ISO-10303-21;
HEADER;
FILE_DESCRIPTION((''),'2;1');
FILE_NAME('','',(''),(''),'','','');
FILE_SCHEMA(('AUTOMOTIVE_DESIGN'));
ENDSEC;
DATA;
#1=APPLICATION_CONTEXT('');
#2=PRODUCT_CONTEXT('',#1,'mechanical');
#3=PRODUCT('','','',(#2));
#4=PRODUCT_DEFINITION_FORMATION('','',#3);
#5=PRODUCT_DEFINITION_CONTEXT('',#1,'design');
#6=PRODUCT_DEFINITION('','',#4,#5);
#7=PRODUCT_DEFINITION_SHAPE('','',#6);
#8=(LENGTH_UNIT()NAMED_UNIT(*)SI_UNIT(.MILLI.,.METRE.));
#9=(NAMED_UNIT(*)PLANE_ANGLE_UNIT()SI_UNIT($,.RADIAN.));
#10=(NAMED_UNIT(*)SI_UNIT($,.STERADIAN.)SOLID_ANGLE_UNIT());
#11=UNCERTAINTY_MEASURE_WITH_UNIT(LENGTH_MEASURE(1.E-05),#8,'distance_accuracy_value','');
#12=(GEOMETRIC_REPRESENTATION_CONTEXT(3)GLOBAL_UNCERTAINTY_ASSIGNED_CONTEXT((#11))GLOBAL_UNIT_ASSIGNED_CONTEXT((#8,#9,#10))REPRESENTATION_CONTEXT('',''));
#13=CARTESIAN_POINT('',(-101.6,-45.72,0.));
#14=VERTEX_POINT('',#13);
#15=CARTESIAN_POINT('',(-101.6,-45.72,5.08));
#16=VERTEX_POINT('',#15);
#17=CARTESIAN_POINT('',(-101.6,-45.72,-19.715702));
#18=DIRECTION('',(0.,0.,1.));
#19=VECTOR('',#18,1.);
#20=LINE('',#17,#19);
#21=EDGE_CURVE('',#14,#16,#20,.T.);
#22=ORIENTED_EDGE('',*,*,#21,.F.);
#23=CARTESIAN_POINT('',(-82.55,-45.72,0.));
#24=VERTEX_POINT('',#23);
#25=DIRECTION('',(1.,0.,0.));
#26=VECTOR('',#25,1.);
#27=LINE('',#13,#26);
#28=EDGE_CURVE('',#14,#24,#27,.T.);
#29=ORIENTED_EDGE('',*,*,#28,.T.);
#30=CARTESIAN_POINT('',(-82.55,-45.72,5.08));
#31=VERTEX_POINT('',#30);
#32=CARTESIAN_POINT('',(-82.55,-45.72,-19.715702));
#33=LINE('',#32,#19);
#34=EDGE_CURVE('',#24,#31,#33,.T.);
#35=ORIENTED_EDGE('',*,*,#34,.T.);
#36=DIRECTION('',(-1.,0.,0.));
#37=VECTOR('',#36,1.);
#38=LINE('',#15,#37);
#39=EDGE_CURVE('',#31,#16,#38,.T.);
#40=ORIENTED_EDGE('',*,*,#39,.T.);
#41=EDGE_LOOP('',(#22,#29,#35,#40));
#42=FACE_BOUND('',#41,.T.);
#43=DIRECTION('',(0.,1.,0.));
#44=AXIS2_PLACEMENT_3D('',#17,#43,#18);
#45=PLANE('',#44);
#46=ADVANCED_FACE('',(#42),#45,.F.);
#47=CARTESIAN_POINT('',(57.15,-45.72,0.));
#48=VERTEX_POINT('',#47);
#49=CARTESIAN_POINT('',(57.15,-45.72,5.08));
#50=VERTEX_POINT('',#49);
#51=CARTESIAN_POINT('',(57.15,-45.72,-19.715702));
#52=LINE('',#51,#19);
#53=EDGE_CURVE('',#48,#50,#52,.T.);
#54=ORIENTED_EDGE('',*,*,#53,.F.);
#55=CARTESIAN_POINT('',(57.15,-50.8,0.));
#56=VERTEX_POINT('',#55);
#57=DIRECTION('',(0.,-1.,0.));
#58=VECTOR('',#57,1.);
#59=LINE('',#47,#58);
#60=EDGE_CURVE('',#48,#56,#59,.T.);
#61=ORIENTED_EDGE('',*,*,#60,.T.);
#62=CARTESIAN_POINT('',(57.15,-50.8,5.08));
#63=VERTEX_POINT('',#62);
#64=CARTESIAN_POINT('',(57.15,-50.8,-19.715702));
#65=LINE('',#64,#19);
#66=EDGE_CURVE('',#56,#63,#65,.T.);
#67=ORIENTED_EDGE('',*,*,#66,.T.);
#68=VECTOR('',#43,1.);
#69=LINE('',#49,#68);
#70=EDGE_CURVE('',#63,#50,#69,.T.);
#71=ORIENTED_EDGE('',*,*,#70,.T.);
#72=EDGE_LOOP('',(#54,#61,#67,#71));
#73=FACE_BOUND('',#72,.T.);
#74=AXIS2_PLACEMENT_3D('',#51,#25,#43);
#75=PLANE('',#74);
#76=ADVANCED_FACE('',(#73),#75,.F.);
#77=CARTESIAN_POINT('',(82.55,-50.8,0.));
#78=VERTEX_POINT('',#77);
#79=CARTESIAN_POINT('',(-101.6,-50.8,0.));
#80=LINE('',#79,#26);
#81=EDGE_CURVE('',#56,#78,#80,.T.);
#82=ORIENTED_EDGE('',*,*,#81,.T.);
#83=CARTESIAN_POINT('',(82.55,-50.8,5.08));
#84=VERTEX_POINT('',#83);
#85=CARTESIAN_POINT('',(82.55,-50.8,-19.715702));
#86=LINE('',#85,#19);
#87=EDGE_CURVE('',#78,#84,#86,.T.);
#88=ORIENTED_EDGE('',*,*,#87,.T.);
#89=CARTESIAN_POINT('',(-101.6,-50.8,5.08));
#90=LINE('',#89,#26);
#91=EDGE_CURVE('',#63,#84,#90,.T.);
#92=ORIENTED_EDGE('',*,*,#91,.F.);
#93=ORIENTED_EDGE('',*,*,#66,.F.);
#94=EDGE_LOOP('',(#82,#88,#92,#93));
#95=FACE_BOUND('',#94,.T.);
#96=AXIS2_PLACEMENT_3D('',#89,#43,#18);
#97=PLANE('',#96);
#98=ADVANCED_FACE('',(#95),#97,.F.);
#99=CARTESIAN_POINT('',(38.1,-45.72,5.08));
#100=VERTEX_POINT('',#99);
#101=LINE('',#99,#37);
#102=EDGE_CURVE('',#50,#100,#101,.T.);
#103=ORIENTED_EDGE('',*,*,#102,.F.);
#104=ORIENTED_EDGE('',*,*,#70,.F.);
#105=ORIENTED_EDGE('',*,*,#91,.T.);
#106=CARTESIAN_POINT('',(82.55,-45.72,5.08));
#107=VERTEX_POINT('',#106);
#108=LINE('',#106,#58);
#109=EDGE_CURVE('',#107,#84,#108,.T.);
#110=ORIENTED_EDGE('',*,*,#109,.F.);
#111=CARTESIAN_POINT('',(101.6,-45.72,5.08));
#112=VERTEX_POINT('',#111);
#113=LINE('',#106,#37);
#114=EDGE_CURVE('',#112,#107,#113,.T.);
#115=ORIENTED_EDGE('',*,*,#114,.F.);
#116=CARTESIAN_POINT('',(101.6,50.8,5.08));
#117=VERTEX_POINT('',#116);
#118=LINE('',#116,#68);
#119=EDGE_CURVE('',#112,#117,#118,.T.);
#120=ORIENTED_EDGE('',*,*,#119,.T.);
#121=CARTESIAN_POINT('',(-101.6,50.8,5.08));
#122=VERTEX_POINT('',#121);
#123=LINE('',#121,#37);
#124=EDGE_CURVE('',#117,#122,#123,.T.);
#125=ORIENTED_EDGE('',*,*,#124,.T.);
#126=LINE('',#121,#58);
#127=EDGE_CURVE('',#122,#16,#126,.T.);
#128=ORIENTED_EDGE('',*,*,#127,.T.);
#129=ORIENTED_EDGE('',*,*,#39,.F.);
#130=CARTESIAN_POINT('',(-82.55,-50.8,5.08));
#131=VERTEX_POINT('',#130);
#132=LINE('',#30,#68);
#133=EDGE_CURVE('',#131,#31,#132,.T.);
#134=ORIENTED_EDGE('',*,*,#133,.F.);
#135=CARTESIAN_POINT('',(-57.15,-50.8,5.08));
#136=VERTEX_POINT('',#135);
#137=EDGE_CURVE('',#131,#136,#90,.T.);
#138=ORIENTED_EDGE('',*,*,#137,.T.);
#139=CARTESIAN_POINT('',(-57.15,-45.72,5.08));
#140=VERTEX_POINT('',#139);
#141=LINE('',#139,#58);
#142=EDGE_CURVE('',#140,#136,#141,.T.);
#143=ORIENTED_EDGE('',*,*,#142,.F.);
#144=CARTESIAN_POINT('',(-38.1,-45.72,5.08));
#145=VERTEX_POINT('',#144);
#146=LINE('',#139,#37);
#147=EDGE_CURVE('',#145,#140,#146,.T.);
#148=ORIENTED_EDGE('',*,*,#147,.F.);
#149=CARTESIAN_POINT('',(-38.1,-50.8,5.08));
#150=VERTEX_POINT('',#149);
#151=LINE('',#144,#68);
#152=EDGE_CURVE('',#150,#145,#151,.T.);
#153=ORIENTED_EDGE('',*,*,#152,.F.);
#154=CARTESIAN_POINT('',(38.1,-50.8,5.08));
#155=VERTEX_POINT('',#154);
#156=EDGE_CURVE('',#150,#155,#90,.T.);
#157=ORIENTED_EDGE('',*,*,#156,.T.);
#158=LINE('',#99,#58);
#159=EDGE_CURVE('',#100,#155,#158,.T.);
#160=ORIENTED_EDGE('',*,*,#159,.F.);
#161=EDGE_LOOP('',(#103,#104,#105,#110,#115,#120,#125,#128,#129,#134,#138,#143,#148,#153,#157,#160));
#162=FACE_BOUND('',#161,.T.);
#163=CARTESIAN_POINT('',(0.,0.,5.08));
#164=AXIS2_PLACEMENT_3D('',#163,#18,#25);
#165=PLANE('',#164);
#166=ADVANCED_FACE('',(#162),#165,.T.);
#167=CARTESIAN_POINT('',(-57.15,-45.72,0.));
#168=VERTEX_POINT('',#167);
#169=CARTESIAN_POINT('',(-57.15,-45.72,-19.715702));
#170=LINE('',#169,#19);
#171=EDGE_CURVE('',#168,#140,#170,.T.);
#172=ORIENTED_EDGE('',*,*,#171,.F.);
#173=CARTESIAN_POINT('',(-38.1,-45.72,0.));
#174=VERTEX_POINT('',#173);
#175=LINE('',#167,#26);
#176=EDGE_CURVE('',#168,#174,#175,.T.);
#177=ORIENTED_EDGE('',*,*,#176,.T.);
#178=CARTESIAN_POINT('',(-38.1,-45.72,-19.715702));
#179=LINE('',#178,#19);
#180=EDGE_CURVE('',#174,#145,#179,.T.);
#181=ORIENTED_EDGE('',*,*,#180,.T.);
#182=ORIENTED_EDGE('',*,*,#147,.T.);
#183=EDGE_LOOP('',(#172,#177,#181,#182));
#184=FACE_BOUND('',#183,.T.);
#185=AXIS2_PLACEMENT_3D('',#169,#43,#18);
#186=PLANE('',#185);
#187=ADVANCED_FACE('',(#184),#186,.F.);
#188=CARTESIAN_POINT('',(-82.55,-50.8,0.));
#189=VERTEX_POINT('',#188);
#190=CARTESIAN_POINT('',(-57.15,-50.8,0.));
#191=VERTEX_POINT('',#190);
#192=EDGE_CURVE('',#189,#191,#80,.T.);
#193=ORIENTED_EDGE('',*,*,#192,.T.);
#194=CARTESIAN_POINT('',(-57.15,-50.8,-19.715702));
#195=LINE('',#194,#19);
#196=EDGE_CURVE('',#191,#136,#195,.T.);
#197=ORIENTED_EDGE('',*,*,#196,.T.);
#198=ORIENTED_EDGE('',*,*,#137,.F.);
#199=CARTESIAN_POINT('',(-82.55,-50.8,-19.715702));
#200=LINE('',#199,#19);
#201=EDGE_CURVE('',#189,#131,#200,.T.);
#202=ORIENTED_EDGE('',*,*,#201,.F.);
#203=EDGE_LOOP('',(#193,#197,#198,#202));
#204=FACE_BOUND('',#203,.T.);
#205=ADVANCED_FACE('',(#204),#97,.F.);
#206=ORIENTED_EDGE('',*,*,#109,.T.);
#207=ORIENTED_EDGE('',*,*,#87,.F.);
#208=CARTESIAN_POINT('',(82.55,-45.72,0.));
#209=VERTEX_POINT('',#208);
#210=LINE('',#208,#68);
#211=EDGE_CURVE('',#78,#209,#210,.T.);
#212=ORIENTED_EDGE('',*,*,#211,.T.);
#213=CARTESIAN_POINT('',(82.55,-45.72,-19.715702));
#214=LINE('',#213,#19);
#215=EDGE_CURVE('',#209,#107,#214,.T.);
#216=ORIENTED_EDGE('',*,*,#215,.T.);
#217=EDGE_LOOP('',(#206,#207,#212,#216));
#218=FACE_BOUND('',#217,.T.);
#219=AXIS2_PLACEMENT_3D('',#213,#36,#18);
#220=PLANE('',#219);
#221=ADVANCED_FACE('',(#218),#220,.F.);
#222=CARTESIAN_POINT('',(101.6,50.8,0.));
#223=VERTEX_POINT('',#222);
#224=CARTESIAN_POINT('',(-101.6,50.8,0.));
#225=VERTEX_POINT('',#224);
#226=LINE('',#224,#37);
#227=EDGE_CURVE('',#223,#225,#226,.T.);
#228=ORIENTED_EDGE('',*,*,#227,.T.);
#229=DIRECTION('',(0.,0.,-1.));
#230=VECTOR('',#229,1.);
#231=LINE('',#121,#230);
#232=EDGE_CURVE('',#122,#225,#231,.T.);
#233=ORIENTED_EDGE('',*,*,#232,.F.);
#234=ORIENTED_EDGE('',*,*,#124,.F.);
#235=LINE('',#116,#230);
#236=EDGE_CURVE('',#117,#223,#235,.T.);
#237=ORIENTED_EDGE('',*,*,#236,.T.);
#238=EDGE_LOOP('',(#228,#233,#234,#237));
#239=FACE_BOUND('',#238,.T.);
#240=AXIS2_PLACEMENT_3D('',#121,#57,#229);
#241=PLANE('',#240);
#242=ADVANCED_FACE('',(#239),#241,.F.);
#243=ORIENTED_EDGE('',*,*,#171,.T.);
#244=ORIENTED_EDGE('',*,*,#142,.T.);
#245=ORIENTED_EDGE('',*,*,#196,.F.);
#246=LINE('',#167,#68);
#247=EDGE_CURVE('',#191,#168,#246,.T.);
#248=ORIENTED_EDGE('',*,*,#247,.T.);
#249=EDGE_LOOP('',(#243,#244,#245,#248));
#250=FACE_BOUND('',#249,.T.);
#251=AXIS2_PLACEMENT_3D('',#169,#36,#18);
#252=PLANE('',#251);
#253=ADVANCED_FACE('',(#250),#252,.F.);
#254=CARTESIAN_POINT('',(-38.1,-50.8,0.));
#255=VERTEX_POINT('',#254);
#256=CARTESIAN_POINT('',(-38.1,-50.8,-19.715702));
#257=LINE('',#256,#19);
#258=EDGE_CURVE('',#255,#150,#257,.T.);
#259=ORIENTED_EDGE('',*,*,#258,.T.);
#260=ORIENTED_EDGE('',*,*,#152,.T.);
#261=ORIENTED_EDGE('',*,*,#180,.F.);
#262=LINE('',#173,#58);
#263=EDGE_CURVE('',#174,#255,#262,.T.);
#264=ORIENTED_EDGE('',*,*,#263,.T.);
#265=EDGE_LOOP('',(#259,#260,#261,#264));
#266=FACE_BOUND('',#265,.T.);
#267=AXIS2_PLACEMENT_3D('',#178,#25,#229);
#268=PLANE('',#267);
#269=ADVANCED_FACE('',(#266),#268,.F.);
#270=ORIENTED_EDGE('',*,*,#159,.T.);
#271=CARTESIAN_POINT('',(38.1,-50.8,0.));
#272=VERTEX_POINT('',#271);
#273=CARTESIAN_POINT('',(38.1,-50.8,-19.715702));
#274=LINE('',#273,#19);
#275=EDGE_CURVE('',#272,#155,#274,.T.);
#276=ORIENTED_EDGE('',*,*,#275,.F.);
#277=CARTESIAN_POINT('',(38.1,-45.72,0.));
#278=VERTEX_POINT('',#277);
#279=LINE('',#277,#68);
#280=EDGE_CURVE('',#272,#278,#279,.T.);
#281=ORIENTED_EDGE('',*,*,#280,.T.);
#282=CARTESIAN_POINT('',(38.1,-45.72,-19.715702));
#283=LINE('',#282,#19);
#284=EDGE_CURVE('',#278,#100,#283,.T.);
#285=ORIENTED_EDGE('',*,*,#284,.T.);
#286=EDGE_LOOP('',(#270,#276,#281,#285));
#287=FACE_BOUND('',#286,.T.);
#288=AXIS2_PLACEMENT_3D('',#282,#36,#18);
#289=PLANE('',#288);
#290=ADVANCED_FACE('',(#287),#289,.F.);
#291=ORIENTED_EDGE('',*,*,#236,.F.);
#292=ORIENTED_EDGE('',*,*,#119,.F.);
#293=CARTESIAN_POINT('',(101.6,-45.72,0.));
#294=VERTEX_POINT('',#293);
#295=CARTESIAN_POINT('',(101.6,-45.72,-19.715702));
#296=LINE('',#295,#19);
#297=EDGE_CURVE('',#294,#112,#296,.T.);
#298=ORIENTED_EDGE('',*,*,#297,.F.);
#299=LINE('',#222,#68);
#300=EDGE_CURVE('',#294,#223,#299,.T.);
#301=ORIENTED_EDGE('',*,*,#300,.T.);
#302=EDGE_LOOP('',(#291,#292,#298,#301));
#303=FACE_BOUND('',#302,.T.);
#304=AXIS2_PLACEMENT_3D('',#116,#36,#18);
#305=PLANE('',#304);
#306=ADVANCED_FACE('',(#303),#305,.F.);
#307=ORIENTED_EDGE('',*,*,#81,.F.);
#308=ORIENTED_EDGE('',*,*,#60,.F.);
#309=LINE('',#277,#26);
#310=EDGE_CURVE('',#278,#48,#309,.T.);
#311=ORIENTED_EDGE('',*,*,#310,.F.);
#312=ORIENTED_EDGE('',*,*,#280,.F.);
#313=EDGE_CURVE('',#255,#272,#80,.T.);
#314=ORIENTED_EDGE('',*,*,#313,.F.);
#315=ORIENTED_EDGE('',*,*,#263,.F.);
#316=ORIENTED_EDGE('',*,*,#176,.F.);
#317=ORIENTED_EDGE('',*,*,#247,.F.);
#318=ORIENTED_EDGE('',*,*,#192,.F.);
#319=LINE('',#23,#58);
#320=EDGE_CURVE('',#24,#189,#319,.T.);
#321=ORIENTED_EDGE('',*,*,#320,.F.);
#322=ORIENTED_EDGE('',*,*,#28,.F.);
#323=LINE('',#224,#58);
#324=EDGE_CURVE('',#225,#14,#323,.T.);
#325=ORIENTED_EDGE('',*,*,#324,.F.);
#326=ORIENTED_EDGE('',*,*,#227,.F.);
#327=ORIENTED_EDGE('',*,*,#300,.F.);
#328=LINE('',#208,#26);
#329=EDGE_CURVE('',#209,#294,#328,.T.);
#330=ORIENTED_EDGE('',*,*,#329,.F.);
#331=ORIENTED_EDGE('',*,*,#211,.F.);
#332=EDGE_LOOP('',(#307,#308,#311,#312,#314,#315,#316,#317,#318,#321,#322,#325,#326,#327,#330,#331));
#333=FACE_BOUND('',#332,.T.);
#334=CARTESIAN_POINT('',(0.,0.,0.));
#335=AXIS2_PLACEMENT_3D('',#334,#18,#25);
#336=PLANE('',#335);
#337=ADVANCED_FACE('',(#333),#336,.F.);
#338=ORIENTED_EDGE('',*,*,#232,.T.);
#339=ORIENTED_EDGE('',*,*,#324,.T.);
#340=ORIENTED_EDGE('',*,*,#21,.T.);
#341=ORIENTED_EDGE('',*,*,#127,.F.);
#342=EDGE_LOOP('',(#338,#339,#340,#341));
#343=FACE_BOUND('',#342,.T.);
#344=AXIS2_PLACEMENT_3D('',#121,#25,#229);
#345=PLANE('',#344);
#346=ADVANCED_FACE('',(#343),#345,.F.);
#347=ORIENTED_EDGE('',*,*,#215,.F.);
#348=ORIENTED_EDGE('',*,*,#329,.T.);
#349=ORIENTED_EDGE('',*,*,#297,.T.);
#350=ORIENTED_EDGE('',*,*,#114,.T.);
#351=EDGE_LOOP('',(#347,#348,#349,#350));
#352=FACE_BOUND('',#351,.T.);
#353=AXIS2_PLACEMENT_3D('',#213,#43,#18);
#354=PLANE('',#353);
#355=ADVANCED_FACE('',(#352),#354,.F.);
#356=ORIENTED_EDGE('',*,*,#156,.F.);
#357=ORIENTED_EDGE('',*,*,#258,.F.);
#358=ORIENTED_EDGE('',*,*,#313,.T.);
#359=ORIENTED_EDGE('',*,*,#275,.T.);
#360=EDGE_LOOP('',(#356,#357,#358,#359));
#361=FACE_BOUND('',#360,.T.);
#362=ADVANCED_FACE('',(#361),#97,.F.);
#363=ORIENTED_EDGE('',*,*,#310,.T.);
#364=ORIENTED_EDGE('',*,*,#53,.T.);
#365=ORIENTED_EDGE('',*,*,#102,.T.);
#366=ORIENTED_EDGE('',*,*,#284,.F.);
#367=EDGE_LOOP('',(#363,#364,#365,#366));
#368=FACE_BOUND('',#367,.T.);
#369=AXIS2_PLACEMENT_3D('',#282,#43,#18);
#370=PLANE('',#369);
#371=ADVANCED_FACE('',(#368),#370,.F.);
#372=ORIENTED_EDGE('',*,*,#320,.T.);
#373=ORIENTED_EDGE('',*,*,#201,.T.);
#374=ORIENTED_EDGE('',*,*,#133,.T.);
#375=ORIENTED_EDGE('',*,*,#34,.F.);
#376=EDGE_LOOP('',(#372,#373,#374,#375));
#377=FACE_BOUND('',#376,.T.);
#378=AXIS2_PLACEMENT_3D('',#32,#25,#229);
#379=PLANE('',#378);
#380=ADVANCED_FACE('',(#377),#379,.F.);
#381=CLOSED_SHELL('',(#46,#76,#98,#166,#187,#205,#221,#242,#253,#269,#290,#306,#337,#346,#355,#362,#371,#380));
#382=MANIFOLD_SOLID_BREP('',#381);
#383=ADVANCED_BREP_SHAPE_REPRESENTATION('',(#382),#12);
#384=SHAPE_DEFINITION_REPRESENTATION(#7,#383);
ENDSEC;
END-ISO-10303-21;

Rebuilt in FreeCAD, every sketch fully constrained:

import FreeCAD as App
import Part
import Sketcher
from FreeCAD import Vector
Q = App.Units.Quantity


def add_polygon(sketch, points):
    """Adds a closed chain of lines whose ends are joined by coincident constraints."""
    first, n = sketch.GeometryCount, len(points)
    for a, b in zip(points, points[1:] + points[:1]):
        sketch.addGeometry(Part.LineSegment(App.Vector(*a, 0), App.Vector(*b, 0)), False)
    for i in range(n):
        sketch.addConstraint(Sketcher.Constraint("Coincident", first + i, 2, first + (i + 1) % n, 1))

doc = App.newDocument("Part")
body = doc.addObject("PartDesign::Body", "Body")

sketch1 = body.newObject("Sketcher::SketchObject", "Sketch")
sketch1.AttachmentSupport = (doc.getObject("XY_Plane"), [""])
sketch1.MapMode = "FlatFace"
add_polygon(sketch1, [(-102, 51), (-102, -51), (102, -51), (102, 51)])
sketch1.addConstraint([
    Sketcher.Constraint("Vertical", 0),
    Sketcher.Constraint("Horizontal", 1),
    Sketcher.Constraint("Vertical", 2),
    Sketcher.Constraint("Horizontal", 3),
    Sketcher.Constraint("Symmetric", 0, 2, 2, 2, -1, 1),
    Sketcher.Constraint("DistanceX", 1, 1, 1, 2, Q("8 in")),
    Sketcher.Constraint("DistanceY", 0, 2, 0, 1, Q("4 in")),
])
pad1 = body.newObject("PartDesign::Pad", "Pad")
pad1.Profile = sketch1
pad1.Length = Q("0.2 in")

sketch2 = body.newObject("Sketcher::SketchObject", "Sketch001")
sketch2.AttachmentSupport = (doc.getObject("XY_Plane"), [""])
sketch2.MapMode = "FlatFace"
sketch2.AttachmentOffset = App.Placement(Vector(0, 0, 0.2 * 25.4), App.Rotation())
add_polygon(sketch2, [(-102, -46), (-102, -51), (-83, -51), (-83, -46)])
add_polygon(sketch2, [(38, -46), (38, -51), (57, -51), (57, -46)])
add_polygon(sketch2, [(83, -46), (83, -51), (102, -51), (102, -46)])
add_polygon(sketch2, [(-57, -46), (-57, -51), (-38, -51), (-38, -46)])
sketch2.addConstraint([
    Sketcher.Constraint("Vertical", 0),
    Sketcher.Constraint("Horizontal", 1),
    Sketcher.Constraint("Vertical", 2),
    Sketcher.Constraint("Horizontal", 3),
    Sketcher.Constraint("Vertical", 4),
    Sketcher.Constraint("Horizontal", 5),
    Sketcher.Constraint("Vertical", 6),
    Sketcher.Constraint("Horizontal", 7),
    Sketcher.Constraint("Vertical", 8),
    Sketcher.Constraint("Horizontal", 9),
    Sketcher.Constraint("Vertical", 10),
    Sketcher.Constraint("Horizontal", 11),
    Sketcher.Constraint("Vertical", 12),
    Sketcher.Constraint("Horizontal", 13),
    Sketcher.Constraint("Vertical", 14),
    Sketcher.Constraint("Horizontal", 15),
    Sketcher.Constraint("Symmetric", 1, 2, 8, 2, -2),
    Sketcher.Constraint("Symmetric", 3, 2, 10, 2, -2),
    Sketcher.Constraint("Symmetric", 5, 2, 12, 2, -2),
    Sketcher.Constraint("Symmetric", 7, 2, 14, 2, -2),
    Sketcher.Constraint("Horizontal", 1, 2, 4, 2),
    Sketcher.Constraint("Horizontal", 3, 2, 6, 2),
    Sketcher.Constraint("Equal", 3, 5),
    Sketcher.Constraint("DistanceY", 0, 2, 0, 1, Q("0.2 in")),
    Sketcher.Constraint("DistanceX", 0, 2, -1, 1, Q("4 in")),
    Sketcher.Constraint("DistanceY", 0, 2, -1, 1, Q("2 in")),
    Sketcher.Constraint("DistanceX", 5, 2, 8, 2, Q("1 in")),
    Sketcher.Constraint("DistanceX", 1, 1, 1, 2, Q("0.75 in")),
])
pocket1 = body.newObject("PartDesign::Pocket", "Pocket")
pocket1.Profile = sketch2
pocket1.Length = Q("0.2 in")

doc.recompute()
